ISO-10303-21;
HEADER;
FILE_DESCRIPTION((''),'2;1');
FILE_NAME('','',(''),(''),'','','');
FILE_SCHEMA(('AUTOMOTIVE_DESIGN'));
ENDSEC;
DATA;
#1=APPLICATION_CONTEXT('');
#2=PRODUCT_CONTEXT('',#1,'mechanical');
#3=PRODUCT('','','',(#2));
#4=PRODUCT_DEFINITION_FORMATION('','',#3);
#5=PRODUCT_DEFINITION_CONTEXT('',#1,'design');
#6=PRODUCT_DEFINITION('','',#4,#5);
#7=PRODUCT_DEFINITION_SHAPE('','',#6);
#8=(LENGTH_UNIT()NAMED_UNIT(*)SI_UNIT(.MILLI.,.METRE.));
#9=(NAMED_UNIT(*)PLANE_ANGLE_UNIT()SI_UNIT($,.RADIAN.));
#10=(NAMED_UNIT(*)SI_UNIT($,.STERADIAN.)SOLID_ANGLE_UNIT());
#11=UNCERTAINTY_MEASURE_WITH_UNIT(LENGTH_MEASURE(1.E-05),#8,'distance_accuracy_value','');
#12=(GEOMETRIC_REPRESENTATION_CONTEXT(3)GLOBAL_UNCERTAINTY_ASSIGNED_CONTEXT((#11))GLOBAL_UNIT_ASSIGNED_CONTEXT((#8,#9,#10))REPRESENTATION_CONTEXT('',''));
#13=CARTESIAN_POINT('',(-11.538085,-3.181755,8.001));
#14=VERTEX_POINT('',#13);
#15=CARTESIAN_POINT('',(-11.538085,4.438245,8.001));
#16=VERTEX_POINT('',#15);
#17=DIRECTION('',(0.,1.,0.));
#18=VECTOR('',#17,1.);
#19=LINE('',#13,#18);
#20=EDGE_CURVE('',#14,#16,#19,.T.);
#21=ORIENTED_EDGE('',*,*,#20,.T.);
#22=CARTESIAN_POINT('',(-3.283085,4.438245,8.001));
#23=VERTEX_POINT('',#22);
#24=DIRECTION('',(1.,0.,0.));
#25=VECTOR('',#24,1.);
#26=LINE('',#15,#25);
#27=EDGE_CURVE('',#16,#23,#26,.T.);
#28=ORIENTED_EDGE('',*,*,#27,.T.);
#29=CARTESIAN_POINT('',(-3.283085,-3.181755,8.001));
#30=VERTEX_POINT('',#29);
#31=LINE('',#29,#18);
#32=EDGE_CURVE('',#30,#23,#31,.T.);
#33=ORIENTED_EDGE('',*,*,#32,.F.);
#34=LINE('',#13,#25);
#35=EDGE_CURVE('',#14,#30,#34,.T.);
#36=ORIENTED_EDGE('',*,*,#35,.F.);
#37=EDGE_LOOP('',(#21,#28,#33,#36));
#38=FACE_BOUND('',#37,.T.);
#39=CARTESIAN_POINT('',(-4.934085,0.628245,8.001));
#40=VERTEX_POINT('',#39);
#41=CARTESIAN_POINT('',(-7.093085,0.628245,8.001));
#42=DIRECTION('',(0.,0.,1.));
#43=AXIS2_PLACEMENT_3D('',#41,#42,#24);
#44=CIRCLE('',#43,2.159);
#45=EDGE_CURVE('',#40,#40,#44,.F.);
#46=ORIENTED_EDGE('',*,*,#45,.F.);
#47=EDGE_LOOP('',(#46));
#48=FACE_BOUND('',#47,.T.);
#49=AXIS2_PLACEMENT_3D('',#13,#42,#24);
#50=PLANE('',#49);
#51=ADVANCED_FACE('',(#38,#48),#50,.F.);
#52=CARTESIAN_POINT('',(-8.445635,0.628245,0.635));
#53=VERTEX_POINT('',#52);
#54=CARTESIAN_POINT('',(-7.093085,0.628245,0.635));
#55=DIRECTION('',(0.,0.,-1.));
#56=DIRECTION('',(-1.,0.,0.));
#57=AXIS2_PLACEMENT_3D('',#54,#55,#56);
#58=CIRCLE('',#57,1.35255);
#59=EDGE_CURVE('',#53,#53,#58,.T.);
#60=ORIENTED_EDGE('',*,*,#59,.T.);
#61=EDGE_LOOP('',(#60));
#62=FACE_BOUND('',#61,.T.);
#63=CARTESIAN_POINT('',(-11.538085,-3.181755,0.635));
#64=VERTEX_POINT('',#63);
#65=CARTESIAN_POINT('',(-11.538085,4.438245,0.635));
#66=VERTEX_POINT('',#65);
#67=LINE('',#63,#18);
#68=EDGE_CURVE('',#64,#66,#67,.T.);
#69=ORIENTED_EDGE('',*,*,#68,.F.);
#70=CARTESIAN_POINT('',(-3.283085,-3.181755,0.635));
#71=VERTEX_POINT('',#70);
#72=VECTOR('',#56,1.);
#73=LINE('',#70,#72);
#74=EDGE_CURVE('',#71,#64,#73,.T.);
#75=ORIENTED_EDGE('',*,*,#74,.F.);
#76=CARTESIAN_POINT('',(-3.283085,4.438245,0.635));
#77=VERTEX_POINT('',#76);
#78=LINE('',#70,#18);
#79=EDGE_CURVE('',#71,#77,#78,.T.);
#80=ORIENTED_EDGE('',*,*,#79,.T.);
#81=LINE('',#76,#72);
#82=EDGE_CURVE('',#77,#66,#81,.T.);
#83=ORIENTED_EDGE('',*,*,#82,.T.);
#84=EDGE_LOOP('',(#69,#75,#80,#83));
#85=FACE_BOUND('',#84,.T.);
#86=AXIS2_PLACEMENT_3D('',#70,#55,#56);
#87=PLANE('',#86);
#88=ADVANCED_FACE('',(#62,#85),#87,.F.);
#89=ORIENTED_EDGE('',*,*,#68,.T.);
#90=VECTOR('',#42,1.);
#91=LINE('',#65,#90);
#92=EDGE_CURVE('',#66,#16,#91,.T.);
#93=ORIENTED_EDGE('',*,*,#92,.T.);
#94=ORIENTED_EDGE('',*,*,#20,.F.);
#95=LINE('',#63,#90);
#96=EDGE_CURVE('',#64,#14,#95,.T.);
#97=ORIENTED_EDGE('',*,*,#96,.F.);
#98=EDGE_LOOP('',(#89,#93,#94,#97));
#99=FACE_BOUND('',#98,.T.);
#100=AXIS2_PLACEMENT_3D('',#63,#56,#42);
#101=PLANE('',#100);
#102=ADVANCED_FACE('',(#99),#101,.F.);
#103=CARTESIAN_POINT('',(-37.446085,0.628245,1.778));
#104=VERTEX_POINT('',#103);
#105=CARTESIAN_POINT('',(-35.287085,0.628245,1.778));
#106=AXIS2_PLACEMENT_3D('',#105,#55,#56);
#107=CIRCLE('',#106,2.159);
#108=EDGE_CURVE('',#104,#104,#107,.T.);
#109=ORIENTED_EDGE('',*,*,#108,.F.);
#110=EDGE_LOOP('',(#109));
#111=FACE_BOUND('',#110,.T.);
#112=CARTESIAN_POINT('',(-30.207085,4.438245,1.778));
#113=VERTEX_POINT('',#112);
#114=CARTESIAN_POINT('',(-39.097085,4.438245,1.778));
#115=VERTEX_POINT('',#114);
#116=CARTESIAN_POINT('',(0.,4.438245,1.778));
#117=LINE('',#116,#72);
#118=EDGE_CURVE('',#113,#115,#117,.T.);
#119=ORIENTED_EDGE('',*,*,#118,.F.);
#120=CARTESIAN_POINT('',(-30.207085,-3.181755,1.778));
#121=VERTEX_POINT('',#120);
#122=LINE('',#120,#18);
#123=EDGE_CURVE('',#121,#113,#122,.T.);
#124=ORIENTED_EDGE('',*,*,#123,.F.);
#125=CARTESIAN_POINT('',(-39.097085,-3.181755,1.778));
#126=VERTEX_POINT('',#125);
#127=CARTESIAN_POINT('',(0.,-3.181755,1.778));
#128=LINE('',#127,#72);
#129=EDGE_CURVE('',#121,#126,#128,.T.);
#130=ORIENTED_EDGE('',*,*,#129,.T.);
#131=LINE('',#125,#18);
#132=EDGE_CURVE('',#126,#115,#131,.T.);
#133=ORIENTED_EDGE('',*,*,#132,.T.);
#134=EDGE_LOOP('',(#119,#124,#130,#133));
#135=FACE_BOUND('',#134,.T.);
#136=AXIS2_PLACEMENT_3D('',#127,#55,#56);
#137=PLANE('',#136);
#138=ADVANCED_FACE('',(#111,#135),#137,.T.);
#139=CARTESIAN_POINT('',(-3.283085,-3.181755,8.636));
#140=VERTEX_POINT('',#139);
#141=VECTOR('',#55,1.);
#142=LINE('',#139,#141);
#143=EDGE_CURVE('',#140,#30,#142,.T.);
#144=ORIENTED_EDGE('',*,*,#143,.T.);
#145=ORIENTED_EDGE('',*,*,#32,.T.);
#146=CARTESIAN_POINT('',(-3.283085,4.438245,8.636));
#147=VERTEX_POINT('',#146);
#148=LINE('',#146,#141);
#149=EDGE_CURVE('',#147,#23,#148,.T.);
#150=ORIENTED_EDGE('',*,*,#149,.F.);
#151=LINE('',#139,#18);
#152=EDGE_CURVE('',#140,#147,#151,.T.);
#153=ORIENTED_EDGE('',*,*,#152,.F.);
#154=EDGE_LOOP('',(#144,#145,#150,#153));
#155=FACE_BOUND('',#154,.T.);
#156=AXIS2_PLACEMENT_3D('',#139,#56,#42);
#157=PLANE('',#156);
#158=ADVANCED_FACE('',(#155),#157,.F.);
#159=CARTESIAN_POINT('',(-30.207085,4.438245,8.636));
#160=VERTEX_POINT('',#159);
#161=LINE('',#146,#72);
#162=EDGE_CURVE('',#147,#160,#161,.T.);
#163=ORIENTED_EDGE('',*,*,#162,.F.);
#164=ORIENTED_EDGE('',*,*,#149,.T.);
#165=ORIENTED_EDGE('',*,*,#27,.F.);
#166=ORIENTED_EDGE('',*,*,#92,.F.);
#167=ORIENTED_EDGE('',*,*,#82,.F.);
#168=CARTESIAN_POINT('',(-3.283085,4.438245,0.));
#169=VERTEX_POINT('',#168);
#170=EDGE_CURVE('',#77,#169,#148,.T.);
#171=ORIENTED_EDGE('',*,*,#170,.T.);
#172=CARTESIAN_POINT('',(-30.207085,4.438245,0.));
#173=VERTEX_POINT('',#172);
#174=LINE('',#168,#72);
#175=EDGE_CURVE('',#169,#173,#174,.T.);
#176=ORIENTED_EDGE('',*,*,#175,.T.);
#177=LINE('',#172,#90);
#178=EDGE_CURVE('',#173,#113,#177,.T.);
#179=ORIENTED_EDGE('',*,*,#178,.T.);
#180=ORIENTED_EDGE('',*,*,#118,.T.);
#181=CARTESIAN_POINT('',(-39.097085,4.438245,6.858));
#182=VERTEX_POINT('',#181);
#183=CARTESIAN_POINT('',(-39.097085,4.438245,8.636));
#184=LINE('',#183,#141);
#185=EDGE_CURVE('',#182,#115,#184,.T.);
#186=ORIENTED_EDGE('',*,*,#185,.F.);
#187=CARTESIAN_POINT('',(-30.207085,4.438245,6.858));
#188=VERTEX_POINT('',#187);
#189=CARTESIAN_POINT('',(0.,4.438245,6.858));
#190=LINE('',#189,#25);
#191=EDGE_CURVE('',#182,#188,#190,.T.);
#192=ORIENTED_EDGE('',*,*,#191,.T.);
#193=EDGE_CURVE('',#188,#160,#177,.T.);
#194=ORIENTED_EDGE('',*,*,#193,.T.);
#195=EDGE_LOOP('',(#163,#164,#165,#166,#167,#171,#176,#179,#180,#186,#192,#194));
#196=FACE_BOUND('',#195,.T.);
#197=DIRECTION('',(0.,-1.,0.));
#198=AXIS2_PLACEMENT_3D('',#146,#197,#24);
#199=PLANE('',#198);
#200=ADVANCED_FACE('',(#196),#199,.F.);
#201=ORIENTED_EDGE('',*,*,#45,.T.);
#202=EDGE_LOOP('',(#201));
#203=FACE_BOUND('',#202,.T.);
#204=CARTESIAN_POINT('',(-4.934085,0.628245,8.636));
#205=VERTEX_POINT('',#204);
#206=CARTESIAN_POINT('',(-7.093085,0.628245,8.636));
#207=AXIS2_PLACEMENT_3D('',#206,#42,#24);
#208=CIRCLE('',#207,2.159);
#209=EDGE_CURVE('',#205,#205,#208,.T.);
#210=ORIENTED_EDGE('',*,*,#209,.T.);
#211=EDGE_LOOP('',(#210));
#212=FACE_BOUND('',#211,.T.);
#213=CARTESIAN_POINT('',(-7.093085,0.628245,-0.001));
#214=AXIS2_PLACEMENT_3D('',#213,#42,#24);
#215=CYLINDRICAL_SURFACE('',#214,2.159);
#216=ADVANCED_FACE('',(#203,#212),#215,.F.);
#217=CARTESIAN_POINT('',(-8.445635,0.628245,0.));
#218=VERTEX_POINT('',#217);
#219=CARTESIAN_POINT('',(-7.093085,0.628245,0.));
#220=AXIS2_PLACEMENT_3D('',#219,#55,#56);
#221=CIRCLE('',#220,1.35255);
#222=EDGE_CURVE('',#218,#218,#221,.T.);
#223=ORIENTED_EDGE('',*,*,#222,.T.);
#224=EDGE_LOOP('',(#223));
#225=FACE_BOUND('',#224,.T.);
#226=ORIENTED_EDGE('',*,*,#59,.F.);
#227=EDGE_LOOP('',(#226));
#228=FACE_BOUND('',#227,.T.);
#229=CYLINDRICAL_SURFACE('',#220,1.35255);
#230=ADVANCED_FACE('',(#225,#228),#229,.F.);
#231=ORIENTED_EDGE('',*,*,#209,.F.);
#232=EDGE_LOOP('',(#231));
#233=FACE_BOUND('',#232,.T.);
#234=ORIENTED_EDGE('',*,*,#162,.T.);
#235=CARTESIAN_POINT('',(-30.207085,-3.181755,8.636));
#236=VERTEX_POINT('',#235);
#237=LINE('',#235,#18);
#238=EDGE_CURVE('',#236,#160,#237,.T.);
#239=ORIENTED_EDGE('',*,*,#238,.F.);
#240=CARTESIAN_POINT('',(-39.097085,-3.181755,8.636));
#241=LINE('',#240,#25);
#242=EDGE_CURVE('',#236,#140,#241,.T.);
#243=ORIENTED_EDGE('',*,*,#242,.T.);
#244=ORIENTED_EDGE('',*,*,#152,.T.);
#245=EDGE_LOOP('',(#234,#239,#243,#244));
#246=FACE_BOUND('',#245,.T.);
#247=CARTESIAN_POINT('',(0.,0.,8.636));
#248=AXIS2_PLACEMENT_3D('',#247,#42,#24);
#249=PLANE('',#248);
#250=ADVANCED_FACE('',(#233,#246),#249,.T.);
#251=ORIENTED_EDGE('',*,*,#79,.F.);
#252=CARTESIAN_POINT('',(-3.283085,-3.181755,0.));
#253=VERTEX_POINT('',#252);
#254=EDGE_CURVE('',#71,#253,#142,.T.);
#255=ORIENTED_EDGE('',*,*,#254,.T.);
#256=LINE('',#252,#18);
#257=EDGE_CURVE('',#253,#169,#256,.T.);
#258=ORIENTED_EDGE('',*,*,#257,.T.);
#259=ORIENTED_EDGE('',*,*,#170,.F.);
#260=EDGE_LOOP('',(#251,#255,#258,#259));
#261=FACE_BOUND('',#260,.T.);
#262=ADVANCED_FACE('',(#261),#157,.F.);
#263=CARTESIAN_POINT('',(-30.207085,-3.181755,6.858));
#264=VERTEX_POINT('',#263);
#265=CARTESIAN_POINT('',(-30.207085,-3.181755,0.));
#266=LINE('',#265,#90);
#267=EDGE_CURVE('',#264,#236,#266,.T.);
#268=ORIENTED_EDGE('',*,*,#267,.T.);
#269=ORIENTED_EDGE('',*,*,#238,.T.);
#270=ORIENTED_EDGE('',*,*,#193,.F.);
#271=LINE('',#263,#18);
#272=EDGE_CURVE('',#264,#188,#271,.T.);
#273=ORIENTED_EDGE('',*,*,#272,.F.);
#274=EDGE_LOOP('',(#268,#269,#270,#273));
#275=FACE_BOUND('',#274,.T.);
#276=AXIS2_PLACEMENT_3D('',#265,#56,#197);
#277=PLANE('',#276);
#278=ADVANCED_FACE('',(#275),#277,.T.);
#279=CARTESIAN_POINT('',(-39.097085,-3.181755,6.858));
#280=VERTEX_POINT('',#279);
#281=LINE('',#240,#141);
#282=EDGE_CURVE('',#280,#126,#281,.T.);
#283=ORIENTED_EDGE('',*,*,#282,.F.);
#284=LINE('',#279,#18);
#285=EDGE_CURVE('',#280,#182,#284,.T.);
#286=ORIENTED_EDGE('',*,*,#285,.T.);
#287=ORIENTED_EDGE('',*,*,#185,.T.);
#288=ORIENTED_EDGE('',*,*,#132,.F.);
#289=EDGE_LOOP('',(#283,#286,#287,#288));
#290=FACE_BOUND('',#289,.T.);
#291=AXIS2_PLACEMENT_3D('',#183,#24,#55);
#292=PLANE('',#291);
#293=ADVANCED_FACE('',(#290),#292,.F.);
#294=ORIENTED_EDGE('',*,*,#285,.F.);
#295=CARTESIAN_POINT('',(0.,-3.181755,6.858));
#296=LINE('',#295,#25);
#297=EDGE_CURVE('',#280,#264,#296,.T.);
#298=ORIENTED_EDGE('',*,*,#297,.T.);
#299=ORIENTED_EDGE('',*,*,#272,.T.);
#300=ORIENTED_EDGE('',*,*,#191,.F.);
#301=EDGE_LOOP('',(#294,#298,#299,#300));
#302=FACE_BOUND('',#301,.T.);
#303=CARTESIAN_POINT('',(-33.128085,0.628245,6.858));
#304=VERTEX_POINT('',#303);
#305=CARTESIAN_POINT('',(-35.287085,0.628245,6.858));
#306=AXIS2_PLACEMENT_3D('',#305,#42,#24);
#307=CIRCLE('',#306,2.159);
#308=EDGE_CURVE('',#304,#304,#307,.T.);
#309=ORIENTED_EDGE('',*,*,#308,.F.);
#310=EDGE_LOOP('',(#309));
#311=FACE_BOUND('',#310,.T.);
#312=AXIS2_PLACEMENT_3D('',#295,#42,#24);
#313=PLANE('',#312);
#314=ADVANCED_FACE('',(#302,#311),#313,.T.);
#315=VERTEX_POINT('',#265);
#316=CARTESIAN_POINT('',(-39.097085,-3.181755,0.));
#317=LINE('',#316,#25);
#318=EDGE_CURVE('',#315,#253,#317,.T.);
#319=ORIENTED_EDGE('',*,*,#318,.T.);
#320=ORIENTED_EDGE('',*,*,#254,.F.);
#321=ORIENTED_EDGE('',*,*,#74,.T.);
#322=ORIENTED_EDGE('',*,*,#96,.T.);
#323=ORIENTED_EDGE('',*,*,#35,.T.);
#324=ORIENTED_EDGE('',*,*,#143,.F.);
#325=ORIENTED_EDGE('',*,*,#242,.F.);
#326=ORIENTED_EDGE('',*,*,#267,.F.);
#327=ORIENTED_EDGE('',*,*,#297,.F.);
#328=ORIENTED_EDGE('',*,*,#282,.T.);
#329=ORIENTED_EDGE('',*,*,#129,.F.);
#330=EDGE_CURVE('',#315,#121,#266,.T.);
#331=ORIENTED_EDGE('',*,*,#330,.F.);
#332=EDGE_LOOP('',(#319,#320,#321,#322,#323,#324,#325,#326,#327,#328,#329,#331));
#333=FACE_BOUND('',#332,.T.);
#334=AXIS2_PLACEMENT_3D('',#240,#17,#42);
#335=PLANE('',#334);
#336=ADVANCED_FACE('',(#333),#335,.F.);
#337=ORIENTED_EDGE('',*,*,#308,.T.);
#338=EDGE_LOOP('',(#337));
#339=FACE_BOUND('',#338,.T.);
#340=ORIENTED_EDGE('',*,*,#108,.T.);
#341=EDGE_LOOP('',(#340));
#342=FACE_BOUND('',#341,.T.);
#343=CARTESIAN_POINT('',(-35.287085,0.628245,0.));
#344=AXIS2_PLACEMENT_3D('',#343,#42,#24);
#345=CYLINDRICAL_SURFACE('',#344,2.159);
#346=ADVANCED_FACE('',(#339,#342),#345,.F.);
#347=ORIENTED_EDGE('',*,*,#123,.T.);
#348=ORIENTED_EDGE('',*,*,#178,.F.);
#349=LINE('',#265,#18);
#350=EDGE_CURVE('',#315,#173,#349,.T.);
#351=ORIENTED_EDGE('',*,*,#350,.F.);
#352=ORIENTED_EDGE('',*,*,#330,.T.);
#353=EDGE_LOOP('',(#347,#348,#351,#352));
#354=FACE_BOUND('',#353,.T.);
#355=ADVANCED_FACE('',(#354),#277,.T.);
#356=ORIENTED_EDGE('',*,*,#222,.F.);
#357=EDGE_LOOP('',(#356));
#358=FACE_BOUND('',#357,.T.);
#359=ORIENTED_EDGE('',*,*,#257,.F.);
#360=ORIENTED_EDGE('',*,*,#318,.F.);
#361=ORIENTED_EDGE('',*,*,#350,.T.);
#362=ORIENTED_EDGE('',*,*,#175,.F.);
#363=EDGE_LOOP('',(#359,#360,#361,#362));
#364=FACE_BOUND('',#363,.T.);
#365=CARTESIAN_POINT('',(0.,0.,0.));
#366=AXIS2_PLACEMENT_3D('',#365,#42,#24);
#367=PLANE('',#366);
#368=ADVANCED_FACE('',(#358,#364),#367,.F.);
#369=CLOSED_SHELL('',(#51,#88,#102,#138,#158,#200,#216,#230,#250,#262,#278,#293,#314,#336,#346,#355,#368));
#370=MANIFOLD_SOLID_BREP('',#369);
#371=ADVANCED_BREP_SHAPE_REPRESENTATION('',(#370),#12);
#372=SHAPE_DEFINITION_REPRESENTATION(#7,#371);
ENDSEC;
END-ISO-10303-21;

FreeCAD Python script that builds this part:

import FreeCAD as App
import Part
import Sketcher
from FreeCAD import Vector
Q = App.Units.Quantity

doc = App.newDocument("Part")
body = doc.addObject("PartDesign::Body", "Body")

sketch1 = body.newObject("Sketcher::SketchObject", "Sketch")
sketch1.AttachmentSupport = (doc.getObject("XY_Plane"), [""])
sketch1.MapMode = "FlatFace"
sketch1.addGeometry([
    Part.LineSegment(Vector(-39.097085, 4.438245, 0), Vector(-39.097085, -3.181755, 0)),
    Part.LineSegment(Vector(-39.097085, -3.181755, 0), Vector(-3.283085, -3.181755, 0)),
    Part.LineSegment(Vector(-3.283085, -3.181755, 0), Vector(-3.283085, 4.438245, 0)),
    Part.LineSegment(Vector(-3.283085, 4.438245, 0), Vector(-39.097085, 4.438245, 0)),
], False)
sketch1.addConstraint([
    Sketcher.Constraint("Coincident", 0, 2, 1, 1),
    Sketcher.Constraint("Coincident", 1, 2, 2, 1),
    Sketcher.Constraint("Coincident", 2, 2, 3, 1),
    Sketcher.Constraint("Coincident", 3, 2, 0, 1),
    Sketcher.Constraint("Vertical", 0),
    Sketcher.Constraint("Horizontal", 1),
    Sketcher.Constraint("Vertical", 2),
    Sketcher.Constraint("Horizontal", 3),
    Sketcher.Constraint("DistanceY", 0, 2, 0, 1, Q("0.3 in")),
    Sketcher.Constraint("DistanceX", 1, 1, 1, 2, Q("1.41 in")),
    Sketcher.Constraint("DistanceX", 0, 2, -1, 1, Q("39.097085 mm")),
    Sketcher.Constraint("DistanceY", 0, 2, -1, 1, Q("3.181755 mm")),
])
pad1 = body.newObject("PartDesign::Pad", "Pad")
pad1.Profile = sketch1
pad1.Length = Q("0.34 in")

sketch2 = body.newObject("Sketcher::SketchObject", "Sketch001")
sketch2.AttachmentSupport = (doc.getObject("XZ_Plane"), [""])
sketch2.MapMode = "FlatFace"
sketch2.AttachmentOffset = App.Placement(Vector(0, 0, -4.438245), App.Rotation())
sketch2.addGeometry([
    Part.LineSegment(Vector(-39.097085, 0, 0), Vector(-39.097085, 1.778, 0)),
    Part.LineSegment(Vector(-39.097085, 1.778, 0), Vector(-30.207085, 1.778, 0)),
    Part.LineSegment(Vector(-30.207085, 1.778, 0), Vector(-30.207085, 0, 0)),
    Part.LineSegment(Vector(-30.207085, 0, 0), Vector(-39.097085, 0, 0)),
    Part.LineSegment(Vector(-39.097085, 6.858, 0), Vector(-39.097085, 8.636, 0)),
    Part.LineSegment(Vector(-39.097085, 8.636, 0), Vector(-30.207085, 8.636, 0)),
    Part.LineSegment(Vector(-30.207085, 8.636, 0), Vector(-30.207085, 6.858, 0)),
    Part.LineSegment(Vector(-30.207085, 6.858, 0), Vector(-39.097085, 6.858, 0)),
], False)
sketch2.addConstraint([
    Sketcher.Constraint("Coincident", 0, 2, 1, 1),
    Sketcher.Constraint("Coincident", 1, 2, 2, 1),
    Sketcher.Constraint("Coincident", 2, 2, 3, 1),
    Sketcher.Constraint("Coincident", 3, 2, 0, 1),
    Sketcher.Constraint("Coincident", 4, 2, 5, 1),
    Sketcher.Constraint("Coincident", 5, 2, 6, 1),
    Sketcher.Constraint("Coincident", 6, 2, 7, 1),
    Sketcher.Constraint("Coincident", 7, 2, 4, 1),
    Sketcher.Constraint("Vertical", 0),
    Sketcher.Constraint("Horizontal", 1),
    Sketcher.Constraint("Vertical", 2),
    Sketcher.Constraint("Horizontal", 3),
    Sketcher.Constraint("Vertical", 4),
    Sketcher.Constraint("Horizontal", 5),
    Sketcher.Constraint("Vertical", 6),
    Sketcher.Constraint("Horizontal", 7),
    Sketcher.Constraint("PointOnObject", 2, 2, -1),
    Sketcher.Constraint("Vertical", 3, 2, 4, 2),
    Sketcher.Constraint("Vertical", 2, 2, 5, 2),
    Sketcher.Constraint("Equal", 2, 4),
    Sketcher.Constraint("DistanceX", 1, 1, 1, 2, Q("0.35 in")),
    Sketcher.Constraint("DistanceY", 0, 1, 0, 2, Q("0.07 in")),
    Sketcher.Constraint("DistanceY", 1, 2, 6, 2, Q("0.2 in")),
    Sketcher.Constraint("DistanceX", 0, 2, -1, 1, Q("39.097085 mm")),
])
pocket1 = body.newObject("PartDesign::Pocket", "Pocket")
pocket1.Profile = sketch2
pocket1.Type = "ThroughAll"
pocket1.Reversed = True

sketch3 = body.newObject("Sketcher::SketchObject", "Sketch002")
sketch3.AttachmentSupport = (doc.getObject("XZ_Plane"), [""])
sketch3.MapMode = "FlatFace"
sketch3.AttachmentOffset = App.Placement(Vector(0, 0, -4.438245), App.Rotation())
sketch3.addGeometry([
    Part.LineSegment(Vector(-11.538085, 0.635, 0), Vector(-11.538085, 8.001, 0)),
    Part.LineSegment(Vector(-11.538085, 8.001, 0), Vector(-3.283085, 8.001, 0)),
    Part.LineSegment(Vector(-3.283085, 8.001, 0), Vector(-3.283085, 0.635, 0)),
    Part.LineSegment(Vector(-3.283085, 0.635, 0), Vector(-11.538085, 0.635, 0)),
], False)
sketch3.addConstraint([
    Sketcher.Constraint("Coincident", 0, 2, 1, 1),
    Sketcher.Constraint("Coincident", 1, 2, 2, 1),
    Sketcher.Constraint("Coincident", 2, 2, 3, 1),
    Sketcher.Constraint("Coincident", 3, 2, 0, 1),
    Sketcher.Constraint("Vertical", 0),
    Sketcher.Constraint("Horizontal", 1),
    Sketcher.Constraint("Vertical", 2),
    Sketcher.Constraint("Horizontal", 3),
    Sketcher.Constraint("DistanceY", 0, 1, 0, 2, Q("0.29 in")),
    Sketcher.Constraint("DistanceX", 1, 1, 1, 2, Q("0.325 in")),
    Sketcher.Constraint("DistanceY", -1, 1, 0, 2, Q("0.315 in")),
    Sketcher.Constraint("DistanceX", 0, 2, -1, 1, Q("11.538085 mm")),
])
pocket2 = body.newObject("PartDesign::Pocket", "Pocket001")
pocket2.Profile = sketch3
pocket2.Type = "ThroughAll"
pocket2.Reversed = True

sketch4 = body.newObject("Sketcher::SketchObject", "Sketch003")
sketch4.AttachmentSupport = (doc.getObject("XY_Plane"), [""])
sketch4.MapMode = "FlatFace"
sketch4.AttachmentOffset = App.Placement(Vector(0, 0, 0.27 * 25.4), App.Rotation())
sketch4.addGeometry(Part.Circle(Vector(-35.287085, 0.628245, 0), Vector(0, 0, 1), 2.159), False)
sketch4.addConstraint([
    Sketcher.Constraint("Diameter", 0, Q("0.17 in")),
    Sketcher.Constraint("DistanceX", 0, 3, -1, 1, Q("35.287085 mm")),
    Sketcher.Constraint("DistanceY", -1, 1, 0, 3, Q("0.628245 mm")),
])
pocket3 = body.newObject("PartDesign::Pocket", "Pocket002")
pocket3.Profile = sketch4
pocket3.Type = "ThroughAll"

sketch5 = body.newObject("Sketcher::SketchObject", "Sketch004")
sketch5.AttachmentSupport = (doc.getObject("XY_Plane"), [""])
sketch5.MapMode = "FlatFace"
sketch5.AttachmentOffset = App.Placement(Vector(0, 0, 0.34 * 25.4), App.Rotation())
sketch5.addGeometry(Part.Circle(Vector(-7.093085, 0.628245, 0), Vector(0, 0, 1), 2.159), False)
sketch5.addConstraint([
    Sketcher.Constraint("Diameter", 0, Q("0.17 in")),
    Sketcher.Constraint("DistanceX", 0, 3, -1, 1, Q("7.093085 mm")),
    Sketcher.Constraint("DistanceY", -1, 1, 0, 3, Q("0.628245 mm")),
])
pocket4 = body.newObject("PartDesign::Pocket", "Pocket003")
pocket4.Profile = sketch5
pocket4.Type = "UpToFirst"

sketch6 = body.newObject("Sketcher::SketchObject", "Sketch005")
sketch6.AttachmentSupport = (doc.getObject("XY_Plane"), [""])
sketch6.MapMode = "FlatFace"
sketch6.addGeometry(Part.Circle(Vector(-7.093085, 0.628245, 0), Vector(0, 0, 1), 1.35255), False)
sketch6.addConstraint([
    Sketcher.Constraint("Diameter", 0, Q("0.1065 in")),
    Sketcher.Constraint("DistanceX", 0, 3, -1, 1, Q("7.093085 mm")),
    Sketcher.Constraint("DistanceY", -1, 1, 0, 3, Q("0.628245 mm")),
])
doc.recompute()
hole = body.newObject("PartDesign::Hole", "Hole")
hole.Profile = sketch6
hole.ThreadType = "None"
hole.Diameter = Q("0.1065 in")
hole.DepthType = "Dimension"
hole.Depth = Q("0.025 in")
hole.DrillPoint = "Flat"
hole.Reversed = True

doc.recompute()
